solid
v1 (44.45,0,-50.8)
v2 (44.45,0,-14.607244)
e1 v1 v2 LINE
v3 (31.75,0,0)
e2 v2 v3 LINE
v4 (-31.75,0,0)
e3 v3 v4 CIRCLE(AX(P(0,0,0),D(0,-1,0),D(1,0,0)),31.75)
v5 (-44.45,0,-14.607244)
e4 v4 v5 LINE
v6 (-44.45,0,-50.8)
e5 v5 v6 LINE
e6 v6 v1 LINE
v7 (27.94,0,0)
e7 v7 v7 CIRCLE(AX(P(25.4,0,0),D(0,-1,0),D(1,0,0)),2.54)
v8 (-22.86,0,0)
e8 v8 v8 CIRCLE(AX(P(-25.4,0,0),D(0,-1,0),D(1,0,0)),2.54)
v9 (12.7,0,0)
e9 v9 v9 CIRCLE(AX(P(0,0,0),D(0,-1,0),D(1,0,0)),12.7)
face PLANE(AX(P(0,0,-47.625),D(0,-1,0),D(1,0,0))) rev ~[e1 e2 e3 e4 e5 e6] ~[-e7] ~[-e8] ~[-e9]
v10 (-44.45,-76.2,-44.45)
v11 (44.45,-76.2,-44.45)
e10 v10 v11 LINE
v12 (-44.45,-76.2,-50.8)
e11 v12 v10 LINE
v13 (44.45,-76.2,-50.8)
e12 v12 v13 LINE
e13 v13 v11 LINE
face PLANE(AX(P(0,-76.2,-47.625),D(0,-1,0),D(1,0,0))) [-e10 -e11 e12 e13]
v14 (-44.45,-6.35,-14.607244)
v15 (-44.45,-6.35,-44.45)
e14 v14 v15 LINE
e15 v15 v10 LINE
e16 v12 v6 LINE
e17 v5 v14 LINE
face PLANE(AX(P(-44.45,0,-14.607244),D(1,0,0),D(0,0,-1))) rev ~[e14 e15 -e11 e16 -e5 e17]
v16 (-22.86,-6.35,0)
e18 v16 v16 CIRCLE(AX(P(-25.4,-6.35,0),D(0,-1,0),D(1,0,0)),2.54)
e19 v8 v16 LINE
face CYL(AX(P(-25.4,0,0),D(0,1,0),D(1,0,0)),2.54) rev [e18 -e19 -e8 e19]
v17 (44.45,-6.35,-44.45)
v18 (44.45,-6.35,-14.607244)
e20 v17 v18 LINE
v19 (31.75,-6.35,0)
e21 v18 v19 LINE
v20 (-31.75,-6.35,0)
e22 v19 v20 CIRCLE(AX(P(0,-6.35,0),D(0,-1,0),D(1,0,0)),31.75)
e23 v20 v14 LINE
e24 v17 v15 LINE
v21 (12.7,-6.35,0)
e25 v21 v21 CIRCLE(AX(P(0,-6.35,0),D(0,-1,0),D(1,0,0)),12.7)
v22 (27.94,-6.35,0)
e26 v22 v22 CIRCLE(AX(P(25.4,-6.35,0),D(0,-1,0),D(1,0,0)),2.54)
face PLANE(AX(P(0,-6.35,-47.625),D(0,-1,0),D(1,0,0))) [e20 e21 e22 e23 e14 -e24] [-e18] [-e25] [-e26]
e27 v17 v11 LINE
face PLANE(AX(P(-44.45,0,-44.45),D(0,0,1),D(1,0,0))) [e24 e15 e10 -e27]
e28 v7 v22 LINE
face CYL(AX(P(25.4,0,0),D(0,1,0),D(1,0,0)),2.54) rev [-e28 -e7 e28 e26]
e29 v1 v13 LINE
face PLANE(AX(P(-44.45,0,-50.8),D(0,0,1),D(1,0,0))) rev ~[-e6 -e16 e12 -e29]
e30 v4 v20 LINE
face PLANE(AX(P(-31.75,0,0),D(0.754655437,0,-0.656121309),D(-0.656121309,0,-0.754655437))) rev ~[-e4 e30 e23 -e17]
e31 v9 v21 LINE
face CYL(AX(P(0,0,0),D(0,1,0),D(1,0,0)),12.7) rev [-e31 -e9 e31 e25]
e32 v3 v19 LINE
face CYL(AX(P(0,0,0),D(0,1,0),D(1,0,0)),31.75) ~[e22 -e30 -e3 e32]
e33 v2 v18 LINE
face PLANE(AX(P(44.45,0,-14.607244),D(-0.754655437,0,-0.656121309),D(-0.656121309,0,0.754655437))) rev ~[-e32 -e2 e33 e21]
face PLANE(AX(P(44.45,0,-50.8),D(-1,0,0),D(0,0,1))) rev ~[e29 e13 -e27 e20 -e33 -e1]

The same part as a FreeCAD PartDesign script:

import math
import FreeCAD as App
import Part
import Sketcher

V = App.Vector
Q = App.Units.Quantity


def add_polygon(sketch, points):
    """Adds a closed chain of lines whose ends are joined by coincident constraints."""
    first, n = sketch.GeometryCount, len(points)
    for a, b in zip(points, points[1:] + points[:1]):
        sketch.addGeometry(Part.LineSegment(App.Vector(*a, 0), App.Vector(*b, 0)), False)
    for i in range(n):
        sketch.addConstraint(Sketcher.Constraint("Coincident", first + i, 2, first + (i + 1) % n, 1))

doc = App.newDocument("Part")
body = doc.addObject("PartDesign::Body", "Body")

sketch1 = body.newObject("Sketcher::SketchObject", "Sketch")
sketch1.AttachmentSupport = (doc.getObject("XZ_Plane"), [""])
sketch1.MapMode = "FlatFace"
sketch1.addGeometry([
    Part.LineSegment(V(-44.5, -50.8, 0), V(44.5, -50.8, 0)),
    Part.LineSegment(V(44.5, -50.8, 0), V(44.5, -14.6, 0)),
    Part.LineSegment(V(44.5, -14.6, 0), V(31.8, 0, 0)),
    Part.ArcOfCircle(Part.Circle(V(0, 0, 0), V(0, 0, 1), 31.8), math.radians(0), math.radians(180)),
    Part.LineSegment(V(-31.8, 0, 0), V(-44.5, -14.6, 0)),
    Part.LineSegment(V(-44.5, -14.6, 0), V(-44.5, -50.8, 0)),
    Part.Circle(V(-25.4, 0, 0), V(0, 0, 1), 2.5),
    Part.Circle(V(0, 0, 0), V(0, 0, 1), 12.7),
    Part.Circle(V(25.4, 0, 0), V(0, 0, 1), 2.5),
], False)
sketch1.addConstraint([
    Sketcher.Constraint("Coincident", 0, 2, 1, 1),
    Sketcher.Constraint("Coincident", 1, 2, 2, 1),
    Sketcher.Constraint("Coincident", 2, 2, 3, 1),
    Sketcher.Constraint("Coincident", 3, 2, 4, 1),
    Sketcher.Constraint("Coincident", 4, 2, 5, 1),
    Sketcher.Constraint("Coincident", 5, 2, 0, 1),
    Sketcher.Constraint("Horizontal", 0),
    Sketcher.Constraint("Vertical", 1),
    Sketcher.Constraint("Vertical", 5),
    Sketcher.Constraint("Coincident", 3, 3, -1, 1),
    Sketcher.Constraint("Coincident", 7, 3, -1, 1),
    Sketcher.Constraint("Equal", 6, 8),
    Sketcher.Constraint("Symmetric", 6, 3, 8, 3, -1, 1),
    Sketcher.Constraint("Symmetric", 1, 2, 4, 2, -2),
    Sketcher.Constraint("PointOnObject", 6, 3, -1),
    Sketcher.Constraint("PointOnObject", 2, 2, -1),
    Sketcher.Constraint("PointOnObject", 3, 2, -1),
    Sketcher.Constraint("Diameter", 7, Q("1 in")),
    Sketcher.Constraint("Diameter", 6, Q("0.2 in")),
    Sketcher.Constraint("Radius", 3, Q("1.25 in")),
    Sketcher.Constraint("DistanceX", 0, 1, 0, 2, Q("3.5 in")),
    Sketcher.Constraint("DistanceX", 6, 3, -1, 1, Q("1 in")),
    Sketcher.Constraint("DistanceY", 0, 2, -1, 1, Q("2 in")),
    Sketcher.Constraint("DistanceY", 1, 1, 1, 2, Q("36.192756 mm")),
])
pad1 = body.newObject("PartDesign::Pad", "Pad")
pad1.Profile = sketch1
pad1.Length = Q("0.25 in")

sketch2 = body.newObject("Sketcher::SketchObject", "Sketch001")
sketch2.AttachmentSupport = (doc.getObject("XZ_Plane"), [""])
sketch2.MapMode = "FlatFace"
add_polygon(sketch2, [(-44, -44), (-44, -51), (44, -51), (44, -44)])
sketch2.addConstraint([
    Sketcher.Constraint("Vertical", 0),
    Sketcher.Constraint("Horizontal", 1),
    Sketcher.Constraint("Vertical", 2),
    Sketcher.Constraint("Horizontal", 3),
    Sketcher.Constraint("DistanceX", 1, 1, 1, 2, Q("3.5 in")),
    Sketcher.Constraint("DistanceY", 0, 2, -1, 1, Q("2 in")),
    Sketcher.Constraint("DistanceY", 0, 2, 0, 1, Q("0.25 in")),
    Sketcher.Constraint("DistanceX", 0, 2, -1, 1, Q("1.75 in")),
])
pad2 = body.newObject("PartDesign::Pad", "Pad001")
pad2.Profile = sketch2
pad2.Length = Q("3 in")

doc.recompute()
